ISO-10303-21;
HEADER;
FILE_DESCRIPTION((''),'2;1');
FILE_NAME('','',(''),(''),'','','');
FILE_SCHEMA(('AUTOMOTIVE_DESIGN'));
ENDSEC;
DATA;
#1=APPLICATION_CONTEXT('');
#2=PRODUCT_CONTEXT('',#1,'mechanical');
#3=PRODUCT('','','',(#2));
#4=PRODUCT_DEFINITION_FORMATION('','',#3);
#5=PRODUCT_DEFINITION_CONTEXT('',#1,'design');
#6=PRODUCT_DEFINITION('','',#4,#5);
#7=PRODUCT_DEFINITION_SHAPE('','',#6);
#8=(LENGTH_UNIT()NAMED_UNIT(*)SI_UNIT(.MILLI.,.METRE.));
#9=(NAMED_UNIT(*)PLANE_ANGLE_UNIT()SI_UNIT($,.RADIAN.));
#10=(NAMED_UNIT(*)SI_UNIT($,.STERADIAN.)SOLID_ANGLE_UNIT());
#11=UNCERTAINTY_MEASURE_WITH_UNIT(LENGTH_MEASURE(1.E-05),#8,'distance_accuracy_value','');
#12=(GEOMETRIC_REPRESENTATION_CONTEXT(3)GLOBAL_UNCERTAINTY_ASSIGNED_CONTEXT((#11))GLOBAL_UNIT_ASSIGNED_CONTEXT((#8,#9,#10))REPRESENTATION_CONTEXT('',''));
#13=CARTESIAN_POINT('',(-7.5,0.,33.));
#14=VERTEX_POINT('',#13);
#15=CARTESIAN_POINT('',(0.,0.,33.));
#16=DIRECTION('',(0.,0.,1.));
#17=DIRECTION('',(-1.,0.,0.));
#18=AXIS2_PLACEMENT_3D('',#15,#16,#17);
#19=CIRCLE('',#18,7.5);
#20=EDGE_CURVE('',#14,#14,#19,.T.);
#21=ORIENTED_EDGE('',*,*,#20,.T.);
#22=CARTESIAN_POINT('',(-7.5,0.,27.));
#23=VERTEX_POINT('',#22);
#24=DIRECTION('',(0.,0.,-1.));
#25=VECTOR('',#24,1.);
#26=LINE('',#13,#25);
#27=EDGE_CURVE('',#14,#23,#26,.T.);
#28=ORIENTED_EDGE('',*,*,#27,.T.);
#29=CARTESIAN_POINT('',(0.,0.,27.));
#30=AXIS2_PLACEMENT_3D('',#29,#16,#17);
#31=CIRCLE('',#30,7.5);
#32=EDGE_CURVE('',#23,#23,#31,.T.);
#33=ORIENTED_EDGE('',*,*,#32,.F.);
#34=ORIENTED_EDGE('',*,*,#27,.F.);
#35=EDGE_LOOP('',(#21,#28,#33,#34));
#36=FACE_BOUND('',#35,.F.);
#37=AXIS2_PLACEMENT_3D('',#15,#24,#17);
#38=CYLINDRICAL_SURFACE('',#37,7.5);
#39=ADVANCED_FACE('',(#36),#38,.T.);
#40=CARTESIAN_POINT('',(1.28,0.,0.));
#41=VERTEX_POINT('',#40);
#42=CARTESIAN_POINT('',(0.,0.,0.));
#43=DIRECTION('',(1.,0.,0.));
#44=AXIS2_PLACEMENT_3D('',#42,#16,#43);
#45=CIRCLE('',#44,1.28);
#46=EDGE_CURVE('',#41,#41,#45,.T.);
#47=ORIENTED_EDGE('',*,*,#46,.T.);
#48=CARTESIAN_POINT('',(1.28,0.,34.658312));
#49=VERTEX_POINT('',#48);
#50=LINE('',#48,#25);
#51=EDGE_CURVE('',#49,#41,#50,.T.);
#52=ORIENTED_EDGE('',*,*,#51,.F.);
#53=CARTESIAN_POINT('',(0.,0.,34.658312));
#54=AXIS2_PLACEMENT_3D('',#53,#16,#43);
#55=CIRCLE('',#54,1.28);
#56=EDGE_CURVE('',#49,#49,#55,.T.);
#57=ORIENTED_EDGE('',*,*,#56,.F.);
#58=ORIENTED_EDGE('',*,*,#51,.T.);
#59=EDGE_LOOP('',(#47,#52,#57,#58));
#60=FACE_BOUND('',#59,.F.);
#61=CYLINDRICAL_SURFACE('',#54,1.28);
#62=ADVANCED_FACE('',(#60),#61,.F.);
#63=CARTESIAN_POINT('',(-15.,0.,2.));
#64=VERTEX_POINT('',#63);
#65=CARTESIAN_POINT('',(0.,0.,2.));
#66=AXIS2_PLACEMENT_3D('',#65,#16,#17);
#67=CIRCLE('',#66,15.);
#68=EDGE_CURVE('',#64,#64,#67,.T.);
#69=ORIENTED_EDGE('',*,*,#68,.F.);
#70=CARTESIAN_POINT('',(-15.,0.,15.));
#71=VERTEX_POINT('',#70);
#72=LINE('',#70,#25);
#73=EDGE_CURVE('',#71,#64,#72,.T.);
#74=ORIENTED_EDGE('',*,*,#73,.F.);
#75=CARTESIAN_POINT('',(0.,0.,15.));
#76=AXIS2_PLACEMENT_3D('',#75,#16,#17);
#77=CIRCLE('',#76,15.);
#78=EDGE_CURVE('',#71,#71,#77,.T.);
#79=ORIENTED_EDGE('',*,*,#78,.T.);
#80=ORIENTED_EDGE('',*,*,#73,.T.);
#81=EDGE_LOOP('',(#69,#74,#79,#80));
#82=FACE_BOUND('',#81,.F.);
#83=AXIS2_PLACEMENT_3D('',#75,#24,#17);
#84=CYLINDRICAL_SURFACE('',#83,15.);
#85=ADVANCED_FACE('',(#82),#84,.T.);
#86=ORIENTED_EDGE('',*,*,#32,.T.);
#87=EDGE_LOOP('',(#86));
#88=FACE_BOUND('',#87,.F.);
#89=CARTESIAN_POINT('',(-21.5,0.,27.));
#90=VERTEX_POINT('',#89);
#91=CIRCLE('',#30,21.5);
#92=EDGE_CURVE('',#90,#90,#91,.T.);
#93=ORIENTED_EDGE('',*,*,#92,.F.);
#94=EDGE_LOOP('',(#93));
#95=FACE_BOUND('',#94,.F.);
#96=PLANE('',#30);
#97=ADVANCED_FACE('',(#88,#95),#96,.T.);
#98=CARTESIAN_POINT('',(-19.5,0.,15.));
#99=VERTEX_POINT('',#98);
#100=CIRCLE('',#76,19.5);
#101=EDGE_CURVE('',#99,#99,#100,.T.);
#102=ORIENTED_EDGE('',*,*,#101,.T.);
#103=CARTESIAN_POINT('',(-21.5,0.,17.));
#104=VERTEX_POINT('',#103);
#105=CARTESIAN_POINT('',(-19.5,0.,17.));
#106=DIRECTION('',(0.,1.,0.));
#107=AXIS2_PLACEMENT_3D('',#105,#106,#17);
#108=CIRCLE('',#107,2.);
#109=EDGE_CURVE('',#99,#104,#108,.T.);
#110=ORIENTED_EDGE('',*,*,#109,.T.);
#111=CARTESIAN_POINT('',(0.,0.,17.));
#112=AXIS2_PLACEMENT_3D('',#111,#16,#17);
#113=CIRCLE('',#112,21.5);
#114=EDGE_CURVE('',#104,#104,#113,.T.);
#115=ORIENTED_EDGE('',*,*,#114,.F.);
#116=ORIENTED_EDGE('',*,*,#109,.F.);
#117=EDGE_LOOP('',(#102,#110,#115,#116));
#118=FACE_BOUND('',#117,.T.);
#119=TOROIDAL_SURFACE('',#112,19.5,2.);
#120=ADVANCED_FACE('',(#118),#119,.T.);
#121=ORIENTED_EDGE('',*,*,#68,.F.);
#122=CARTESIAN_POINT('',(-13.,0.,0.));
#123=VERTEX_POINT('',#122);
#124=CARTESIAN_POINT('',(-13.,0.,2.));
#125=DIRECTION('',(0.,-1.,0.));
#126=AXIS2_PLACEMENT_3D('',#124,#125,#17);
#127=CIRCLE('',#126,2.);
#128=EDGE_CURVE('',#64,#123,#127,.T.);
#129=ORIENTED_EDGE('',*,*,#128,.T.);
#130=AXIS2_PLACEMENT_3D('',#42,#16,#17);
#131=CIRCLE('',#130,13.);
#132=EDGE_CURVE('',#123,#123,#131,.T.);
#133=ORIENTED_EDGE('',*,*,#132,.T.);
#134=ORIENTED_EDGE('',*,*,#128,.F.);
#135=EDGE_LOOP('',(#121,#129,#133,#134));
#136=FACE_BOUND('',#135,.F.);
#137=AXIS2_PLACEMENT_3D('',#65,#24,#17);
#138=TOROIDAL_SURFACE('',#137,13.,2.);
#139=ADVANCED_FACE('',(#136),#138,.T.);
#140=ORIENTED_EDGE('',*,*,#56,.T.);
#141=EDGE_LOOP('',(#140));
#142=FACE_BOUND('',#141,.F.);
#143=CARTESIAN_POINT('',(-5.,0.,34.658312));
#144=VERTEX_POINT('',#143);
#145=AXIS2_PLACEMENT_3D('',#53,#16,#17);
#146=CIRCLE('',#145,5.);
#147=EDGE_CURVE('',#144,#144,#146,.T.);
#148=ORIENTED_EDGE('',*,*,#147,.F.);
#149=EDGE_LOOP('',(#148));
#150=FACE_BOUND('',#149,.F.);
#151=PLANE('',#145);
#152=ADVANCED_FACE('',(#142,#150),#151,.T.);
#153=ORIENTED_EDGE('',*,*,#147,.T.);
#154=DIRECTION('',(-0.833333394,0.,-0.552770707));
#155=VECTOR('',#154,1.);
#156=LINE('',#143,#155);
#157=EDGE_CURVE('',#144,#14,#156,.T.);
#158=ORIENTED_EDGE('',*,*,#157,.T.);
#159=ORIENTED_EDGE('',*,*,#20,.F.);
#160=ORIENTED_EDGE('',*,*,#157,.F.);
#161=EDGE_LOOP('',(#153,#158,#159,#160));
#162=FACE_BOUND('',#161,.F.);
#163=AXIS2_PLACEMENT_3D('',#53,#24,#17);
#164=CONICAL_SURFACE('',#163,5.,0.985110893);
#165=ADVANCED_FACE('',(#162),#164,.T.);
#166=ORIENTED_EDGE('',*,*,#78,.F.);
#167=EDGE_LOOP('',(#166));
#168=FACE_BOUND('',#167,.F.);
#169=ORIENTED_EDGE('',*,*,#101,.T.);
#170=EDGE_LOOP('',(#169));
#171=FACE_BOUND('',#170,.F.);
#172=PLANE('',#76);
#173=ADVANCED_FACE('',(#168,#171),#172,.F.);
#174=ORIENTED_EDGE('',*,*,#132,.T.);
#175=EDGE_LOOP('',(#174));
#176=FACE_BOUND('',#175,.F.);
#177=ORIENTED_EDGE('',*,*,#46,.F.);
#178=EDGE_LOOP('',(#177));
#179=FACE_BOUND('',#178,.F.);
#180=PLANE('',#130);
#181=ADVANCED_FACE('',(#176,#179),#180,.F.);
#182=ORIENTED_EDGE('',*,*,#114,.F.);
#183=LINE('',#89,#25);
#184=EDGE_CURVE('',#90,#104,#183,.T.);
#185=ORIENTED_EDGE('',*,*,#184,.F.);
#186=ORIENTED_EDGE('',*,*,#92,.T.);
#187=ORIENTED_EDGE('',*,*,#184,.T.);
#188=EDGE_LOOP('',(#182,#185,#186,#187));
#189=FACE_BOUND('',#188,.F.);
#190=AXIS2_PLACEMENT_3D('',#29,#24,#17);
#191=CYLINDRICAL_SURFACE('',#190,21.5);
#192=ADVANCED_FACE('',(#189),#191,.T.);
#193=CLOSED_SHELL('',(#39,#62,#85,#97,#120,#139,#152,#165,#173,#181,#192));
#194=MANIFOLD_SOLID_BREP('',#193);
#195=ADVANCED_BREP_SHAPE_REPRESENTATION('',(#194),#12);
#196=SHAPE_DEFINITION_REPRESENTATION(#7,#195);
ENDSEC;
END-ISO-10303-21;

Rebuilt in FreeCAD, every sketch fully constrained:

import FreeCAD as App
import Part
import Sketcher
Q = App.Units.Quantity


def edges_at(feature, points):
    """Names of the edges that pass closest to the given points."""
    edges = feature.Shape.Edges
    near = lambda p: min(range(len(edges)), key=lambda i: edges[i].distToShape(Part.Vertex(*p))[0])
    return sorted({f"Edge{near(p) + 1}" for p in points})

doc = App.newDocument("Part")
body = doc.addObject("PartDesign::Body", "Body")

# Sketch on XZ plane
sketch1 = doc.addObject("Sketcher::SketchObject", "Sketch")
body.addObject(sketch1)
sketch1.AttachmentSupport = (doc.XZ_Plane, [""])
sketch1.MapMode = "FlatFace"
sketch1.addGeometry(Part.LineSegment(App.Vector(-15, 0, 0), App.Vector(0, 0, 0)), False)
sketch1.addGeometry(Part.LineSegment(App.Vector(0, 0, 0), App.Vector(0, 34.7, 0)), False)
sketch1.addGeometry(Part.LineSegment(App.Vector(0, 34.7, 0), App.Vector(-5, 34.7, 0)), False)
sketch1.addGeometry(Part.LineSegment(App.Vector(-5, 34.7, 0), App.Vector(-7.5, 33, 0)), False)
sketch1.addGeometry(Part.LineSegment(App.Vector(-7.5, 33, 0), App.Vector(-7.5, 27, 0)), False)
sketch1.addGeometry(Part.LineSegment(App.Vector(-7.5, 27, 0), App.Vector(-21.5, 27, 0)), False)
sketch1.addGeometry(Part.LineSegment(App.Vector(-21.5, 27, 0), App.Vector(-21.5, 15, 0)), False)
sketch1.addGeometry(Part.LineSegment(App.Vector(-21.5, 15, 0), App.Vector(-15, 15, 0)), False)
sketch1.addGeometry(Part.LineSegment(App.Vector(-15, 15, 0), App.Vector(-15, 0, 0)), False)
sketch1.addConstraint(Sketcher.Constraint("Coincident", 0, 2, 1, 1))
sketch1.addConstraint(Sketcher.Constraint("Coincident", 1, 2, 2, 1))
sketch1.addConstraint(Sketcher.Constraint("Coincident", 2, 2, 3, 1))
sketch1.addConstraint(Sketcher.Constraint("Coincident", 3, 2, 4, 1))
sketch1.addConstraint(Sketcher.Constraint("Coincident", 4, 2, 5, 1))
sketch1.addConstraint(Sketcher.Constraint("Coincident", 5, 2, 6, 1))
sketch1.addConstraint(Sketcher.Constraint("Coincident", 6, 2, 7, 1))
sketch1.addConstraint(Sketcher.Constraint("Coincident", 7, 2, 8, 1))
sketch1.addConstraint(Sketcher.Constraint("Coincident", 8, 2, 0, 1))
sketch1.addConstraint(Sketcher.Constraint("Horizontal", 0))
sketch1.addConstraint(Sketcher.Constraint("Vertical", 1))
sketch1.addConstraint(Sketcher.Constraint("Horizontal", 2))
sketch1.addConstraint(Sketcher.Constraint("Vertical", 4))
sketch1.addConstraint(Sketcher.Constraint("Horizontal", 5))
sketch1.addConstraint(Sketcher.Constraint("Vertical", 6))
sketch1.addConstraint(Sketcher.Constraint("Horizontal", 7))
sketch1.addConstraint(Sketcher.Constraint("Vertical", 8))
sketch1.addConstraint(Sketcher.Constraint("Coincident", 0, 2, -1, 1))
sketch1.addConstraint(Sketcher.Constraint("Equal", 0, 8))
sketch1.addConstraint(Sketcher.Constraint("DistanceX", 0, 1, 0, 2, Q("15 mm")))
sketch1.addConstraint(Sketcher.Constraint("DistanceX", 2, 2, 2, 1, Q("5 mm")))
sketch1.addConstraint(Sketcher.Constraint("DistanceX", 5, 2, 5, 1, Q("14 mm")))
sketch1.addConstraint(Sketcher.Constraint("DistanceY", 4, 2, 4, 1, Q("6 mm")))
sketch1.addConstraint(Sketcher.Constraint("DistanceY", 6, 2, 6, 1, Q("12 mm")))
sketch1.addConstraint(Sketcher.Constraint("Distance", 3, Q("3 mm")))
sketch1.addConstraint(Sketcher.Constraint("DistanceX", 7, 1, 7, 2, Q("6.5 mm")))
revolution = doc.addObject("PartDesign::Revolution", "Revolution")
body.addObject(revolution)
revolution.Profile = sketch1
revolution.ReferenceAxis = (sketch1, ["V_Axis"])
revolution.Angle = 360

# Sketch on XY plane
sketch2 = doc.addObject("Sketcher::SketchObject", "Sketch001")
body.addObject(sketch2)
sketch2.AttachmentSupport = (doc.XY_Plane, [""])
sketch2.MapMode = "FlatFace"
sketch2.AttachmentOffset = App.Placement(App.Vector(0, 0, 34.658312), App.Rotation())
sketch2.addGeometry(Part.Circle(App.Vector(0, 0, 0), App.Vector(0, 0, 1), 1.3), False)
sketch2.addConstraint(Sketcher.Constraint("Coincident", 0, 3, -1, 1))
sketch2.addConstraint(Sketcher.Constraint("Diameter", 0, Q("2.56 mm")))
pocket1 = doc.addObject("PartDesign::Pocket", "Pocket")
body.addObject(pocket1)
pocket1.Profile = sketch2
pocket1.Type = "ThroughAll"
doc.recompute()

fillet = doc.addObject("PartDesign::Fillet", "Fillet")
body.addObject(fillet)
fillet.Base = (pocket1, edges_at(pocket1, [(21.5, 0, 15)]))
fillet.Radius = 2
doc.recompute()

fillet2 = doc.addObject("PartDesign::Fillet", "Fillet001")
body.addObject(fillet2)
fillet2.Base = (fillet, edges_at(fillet, [(15, 0, 0)]))
fillet2.Radius = 2

doc.recompute()
